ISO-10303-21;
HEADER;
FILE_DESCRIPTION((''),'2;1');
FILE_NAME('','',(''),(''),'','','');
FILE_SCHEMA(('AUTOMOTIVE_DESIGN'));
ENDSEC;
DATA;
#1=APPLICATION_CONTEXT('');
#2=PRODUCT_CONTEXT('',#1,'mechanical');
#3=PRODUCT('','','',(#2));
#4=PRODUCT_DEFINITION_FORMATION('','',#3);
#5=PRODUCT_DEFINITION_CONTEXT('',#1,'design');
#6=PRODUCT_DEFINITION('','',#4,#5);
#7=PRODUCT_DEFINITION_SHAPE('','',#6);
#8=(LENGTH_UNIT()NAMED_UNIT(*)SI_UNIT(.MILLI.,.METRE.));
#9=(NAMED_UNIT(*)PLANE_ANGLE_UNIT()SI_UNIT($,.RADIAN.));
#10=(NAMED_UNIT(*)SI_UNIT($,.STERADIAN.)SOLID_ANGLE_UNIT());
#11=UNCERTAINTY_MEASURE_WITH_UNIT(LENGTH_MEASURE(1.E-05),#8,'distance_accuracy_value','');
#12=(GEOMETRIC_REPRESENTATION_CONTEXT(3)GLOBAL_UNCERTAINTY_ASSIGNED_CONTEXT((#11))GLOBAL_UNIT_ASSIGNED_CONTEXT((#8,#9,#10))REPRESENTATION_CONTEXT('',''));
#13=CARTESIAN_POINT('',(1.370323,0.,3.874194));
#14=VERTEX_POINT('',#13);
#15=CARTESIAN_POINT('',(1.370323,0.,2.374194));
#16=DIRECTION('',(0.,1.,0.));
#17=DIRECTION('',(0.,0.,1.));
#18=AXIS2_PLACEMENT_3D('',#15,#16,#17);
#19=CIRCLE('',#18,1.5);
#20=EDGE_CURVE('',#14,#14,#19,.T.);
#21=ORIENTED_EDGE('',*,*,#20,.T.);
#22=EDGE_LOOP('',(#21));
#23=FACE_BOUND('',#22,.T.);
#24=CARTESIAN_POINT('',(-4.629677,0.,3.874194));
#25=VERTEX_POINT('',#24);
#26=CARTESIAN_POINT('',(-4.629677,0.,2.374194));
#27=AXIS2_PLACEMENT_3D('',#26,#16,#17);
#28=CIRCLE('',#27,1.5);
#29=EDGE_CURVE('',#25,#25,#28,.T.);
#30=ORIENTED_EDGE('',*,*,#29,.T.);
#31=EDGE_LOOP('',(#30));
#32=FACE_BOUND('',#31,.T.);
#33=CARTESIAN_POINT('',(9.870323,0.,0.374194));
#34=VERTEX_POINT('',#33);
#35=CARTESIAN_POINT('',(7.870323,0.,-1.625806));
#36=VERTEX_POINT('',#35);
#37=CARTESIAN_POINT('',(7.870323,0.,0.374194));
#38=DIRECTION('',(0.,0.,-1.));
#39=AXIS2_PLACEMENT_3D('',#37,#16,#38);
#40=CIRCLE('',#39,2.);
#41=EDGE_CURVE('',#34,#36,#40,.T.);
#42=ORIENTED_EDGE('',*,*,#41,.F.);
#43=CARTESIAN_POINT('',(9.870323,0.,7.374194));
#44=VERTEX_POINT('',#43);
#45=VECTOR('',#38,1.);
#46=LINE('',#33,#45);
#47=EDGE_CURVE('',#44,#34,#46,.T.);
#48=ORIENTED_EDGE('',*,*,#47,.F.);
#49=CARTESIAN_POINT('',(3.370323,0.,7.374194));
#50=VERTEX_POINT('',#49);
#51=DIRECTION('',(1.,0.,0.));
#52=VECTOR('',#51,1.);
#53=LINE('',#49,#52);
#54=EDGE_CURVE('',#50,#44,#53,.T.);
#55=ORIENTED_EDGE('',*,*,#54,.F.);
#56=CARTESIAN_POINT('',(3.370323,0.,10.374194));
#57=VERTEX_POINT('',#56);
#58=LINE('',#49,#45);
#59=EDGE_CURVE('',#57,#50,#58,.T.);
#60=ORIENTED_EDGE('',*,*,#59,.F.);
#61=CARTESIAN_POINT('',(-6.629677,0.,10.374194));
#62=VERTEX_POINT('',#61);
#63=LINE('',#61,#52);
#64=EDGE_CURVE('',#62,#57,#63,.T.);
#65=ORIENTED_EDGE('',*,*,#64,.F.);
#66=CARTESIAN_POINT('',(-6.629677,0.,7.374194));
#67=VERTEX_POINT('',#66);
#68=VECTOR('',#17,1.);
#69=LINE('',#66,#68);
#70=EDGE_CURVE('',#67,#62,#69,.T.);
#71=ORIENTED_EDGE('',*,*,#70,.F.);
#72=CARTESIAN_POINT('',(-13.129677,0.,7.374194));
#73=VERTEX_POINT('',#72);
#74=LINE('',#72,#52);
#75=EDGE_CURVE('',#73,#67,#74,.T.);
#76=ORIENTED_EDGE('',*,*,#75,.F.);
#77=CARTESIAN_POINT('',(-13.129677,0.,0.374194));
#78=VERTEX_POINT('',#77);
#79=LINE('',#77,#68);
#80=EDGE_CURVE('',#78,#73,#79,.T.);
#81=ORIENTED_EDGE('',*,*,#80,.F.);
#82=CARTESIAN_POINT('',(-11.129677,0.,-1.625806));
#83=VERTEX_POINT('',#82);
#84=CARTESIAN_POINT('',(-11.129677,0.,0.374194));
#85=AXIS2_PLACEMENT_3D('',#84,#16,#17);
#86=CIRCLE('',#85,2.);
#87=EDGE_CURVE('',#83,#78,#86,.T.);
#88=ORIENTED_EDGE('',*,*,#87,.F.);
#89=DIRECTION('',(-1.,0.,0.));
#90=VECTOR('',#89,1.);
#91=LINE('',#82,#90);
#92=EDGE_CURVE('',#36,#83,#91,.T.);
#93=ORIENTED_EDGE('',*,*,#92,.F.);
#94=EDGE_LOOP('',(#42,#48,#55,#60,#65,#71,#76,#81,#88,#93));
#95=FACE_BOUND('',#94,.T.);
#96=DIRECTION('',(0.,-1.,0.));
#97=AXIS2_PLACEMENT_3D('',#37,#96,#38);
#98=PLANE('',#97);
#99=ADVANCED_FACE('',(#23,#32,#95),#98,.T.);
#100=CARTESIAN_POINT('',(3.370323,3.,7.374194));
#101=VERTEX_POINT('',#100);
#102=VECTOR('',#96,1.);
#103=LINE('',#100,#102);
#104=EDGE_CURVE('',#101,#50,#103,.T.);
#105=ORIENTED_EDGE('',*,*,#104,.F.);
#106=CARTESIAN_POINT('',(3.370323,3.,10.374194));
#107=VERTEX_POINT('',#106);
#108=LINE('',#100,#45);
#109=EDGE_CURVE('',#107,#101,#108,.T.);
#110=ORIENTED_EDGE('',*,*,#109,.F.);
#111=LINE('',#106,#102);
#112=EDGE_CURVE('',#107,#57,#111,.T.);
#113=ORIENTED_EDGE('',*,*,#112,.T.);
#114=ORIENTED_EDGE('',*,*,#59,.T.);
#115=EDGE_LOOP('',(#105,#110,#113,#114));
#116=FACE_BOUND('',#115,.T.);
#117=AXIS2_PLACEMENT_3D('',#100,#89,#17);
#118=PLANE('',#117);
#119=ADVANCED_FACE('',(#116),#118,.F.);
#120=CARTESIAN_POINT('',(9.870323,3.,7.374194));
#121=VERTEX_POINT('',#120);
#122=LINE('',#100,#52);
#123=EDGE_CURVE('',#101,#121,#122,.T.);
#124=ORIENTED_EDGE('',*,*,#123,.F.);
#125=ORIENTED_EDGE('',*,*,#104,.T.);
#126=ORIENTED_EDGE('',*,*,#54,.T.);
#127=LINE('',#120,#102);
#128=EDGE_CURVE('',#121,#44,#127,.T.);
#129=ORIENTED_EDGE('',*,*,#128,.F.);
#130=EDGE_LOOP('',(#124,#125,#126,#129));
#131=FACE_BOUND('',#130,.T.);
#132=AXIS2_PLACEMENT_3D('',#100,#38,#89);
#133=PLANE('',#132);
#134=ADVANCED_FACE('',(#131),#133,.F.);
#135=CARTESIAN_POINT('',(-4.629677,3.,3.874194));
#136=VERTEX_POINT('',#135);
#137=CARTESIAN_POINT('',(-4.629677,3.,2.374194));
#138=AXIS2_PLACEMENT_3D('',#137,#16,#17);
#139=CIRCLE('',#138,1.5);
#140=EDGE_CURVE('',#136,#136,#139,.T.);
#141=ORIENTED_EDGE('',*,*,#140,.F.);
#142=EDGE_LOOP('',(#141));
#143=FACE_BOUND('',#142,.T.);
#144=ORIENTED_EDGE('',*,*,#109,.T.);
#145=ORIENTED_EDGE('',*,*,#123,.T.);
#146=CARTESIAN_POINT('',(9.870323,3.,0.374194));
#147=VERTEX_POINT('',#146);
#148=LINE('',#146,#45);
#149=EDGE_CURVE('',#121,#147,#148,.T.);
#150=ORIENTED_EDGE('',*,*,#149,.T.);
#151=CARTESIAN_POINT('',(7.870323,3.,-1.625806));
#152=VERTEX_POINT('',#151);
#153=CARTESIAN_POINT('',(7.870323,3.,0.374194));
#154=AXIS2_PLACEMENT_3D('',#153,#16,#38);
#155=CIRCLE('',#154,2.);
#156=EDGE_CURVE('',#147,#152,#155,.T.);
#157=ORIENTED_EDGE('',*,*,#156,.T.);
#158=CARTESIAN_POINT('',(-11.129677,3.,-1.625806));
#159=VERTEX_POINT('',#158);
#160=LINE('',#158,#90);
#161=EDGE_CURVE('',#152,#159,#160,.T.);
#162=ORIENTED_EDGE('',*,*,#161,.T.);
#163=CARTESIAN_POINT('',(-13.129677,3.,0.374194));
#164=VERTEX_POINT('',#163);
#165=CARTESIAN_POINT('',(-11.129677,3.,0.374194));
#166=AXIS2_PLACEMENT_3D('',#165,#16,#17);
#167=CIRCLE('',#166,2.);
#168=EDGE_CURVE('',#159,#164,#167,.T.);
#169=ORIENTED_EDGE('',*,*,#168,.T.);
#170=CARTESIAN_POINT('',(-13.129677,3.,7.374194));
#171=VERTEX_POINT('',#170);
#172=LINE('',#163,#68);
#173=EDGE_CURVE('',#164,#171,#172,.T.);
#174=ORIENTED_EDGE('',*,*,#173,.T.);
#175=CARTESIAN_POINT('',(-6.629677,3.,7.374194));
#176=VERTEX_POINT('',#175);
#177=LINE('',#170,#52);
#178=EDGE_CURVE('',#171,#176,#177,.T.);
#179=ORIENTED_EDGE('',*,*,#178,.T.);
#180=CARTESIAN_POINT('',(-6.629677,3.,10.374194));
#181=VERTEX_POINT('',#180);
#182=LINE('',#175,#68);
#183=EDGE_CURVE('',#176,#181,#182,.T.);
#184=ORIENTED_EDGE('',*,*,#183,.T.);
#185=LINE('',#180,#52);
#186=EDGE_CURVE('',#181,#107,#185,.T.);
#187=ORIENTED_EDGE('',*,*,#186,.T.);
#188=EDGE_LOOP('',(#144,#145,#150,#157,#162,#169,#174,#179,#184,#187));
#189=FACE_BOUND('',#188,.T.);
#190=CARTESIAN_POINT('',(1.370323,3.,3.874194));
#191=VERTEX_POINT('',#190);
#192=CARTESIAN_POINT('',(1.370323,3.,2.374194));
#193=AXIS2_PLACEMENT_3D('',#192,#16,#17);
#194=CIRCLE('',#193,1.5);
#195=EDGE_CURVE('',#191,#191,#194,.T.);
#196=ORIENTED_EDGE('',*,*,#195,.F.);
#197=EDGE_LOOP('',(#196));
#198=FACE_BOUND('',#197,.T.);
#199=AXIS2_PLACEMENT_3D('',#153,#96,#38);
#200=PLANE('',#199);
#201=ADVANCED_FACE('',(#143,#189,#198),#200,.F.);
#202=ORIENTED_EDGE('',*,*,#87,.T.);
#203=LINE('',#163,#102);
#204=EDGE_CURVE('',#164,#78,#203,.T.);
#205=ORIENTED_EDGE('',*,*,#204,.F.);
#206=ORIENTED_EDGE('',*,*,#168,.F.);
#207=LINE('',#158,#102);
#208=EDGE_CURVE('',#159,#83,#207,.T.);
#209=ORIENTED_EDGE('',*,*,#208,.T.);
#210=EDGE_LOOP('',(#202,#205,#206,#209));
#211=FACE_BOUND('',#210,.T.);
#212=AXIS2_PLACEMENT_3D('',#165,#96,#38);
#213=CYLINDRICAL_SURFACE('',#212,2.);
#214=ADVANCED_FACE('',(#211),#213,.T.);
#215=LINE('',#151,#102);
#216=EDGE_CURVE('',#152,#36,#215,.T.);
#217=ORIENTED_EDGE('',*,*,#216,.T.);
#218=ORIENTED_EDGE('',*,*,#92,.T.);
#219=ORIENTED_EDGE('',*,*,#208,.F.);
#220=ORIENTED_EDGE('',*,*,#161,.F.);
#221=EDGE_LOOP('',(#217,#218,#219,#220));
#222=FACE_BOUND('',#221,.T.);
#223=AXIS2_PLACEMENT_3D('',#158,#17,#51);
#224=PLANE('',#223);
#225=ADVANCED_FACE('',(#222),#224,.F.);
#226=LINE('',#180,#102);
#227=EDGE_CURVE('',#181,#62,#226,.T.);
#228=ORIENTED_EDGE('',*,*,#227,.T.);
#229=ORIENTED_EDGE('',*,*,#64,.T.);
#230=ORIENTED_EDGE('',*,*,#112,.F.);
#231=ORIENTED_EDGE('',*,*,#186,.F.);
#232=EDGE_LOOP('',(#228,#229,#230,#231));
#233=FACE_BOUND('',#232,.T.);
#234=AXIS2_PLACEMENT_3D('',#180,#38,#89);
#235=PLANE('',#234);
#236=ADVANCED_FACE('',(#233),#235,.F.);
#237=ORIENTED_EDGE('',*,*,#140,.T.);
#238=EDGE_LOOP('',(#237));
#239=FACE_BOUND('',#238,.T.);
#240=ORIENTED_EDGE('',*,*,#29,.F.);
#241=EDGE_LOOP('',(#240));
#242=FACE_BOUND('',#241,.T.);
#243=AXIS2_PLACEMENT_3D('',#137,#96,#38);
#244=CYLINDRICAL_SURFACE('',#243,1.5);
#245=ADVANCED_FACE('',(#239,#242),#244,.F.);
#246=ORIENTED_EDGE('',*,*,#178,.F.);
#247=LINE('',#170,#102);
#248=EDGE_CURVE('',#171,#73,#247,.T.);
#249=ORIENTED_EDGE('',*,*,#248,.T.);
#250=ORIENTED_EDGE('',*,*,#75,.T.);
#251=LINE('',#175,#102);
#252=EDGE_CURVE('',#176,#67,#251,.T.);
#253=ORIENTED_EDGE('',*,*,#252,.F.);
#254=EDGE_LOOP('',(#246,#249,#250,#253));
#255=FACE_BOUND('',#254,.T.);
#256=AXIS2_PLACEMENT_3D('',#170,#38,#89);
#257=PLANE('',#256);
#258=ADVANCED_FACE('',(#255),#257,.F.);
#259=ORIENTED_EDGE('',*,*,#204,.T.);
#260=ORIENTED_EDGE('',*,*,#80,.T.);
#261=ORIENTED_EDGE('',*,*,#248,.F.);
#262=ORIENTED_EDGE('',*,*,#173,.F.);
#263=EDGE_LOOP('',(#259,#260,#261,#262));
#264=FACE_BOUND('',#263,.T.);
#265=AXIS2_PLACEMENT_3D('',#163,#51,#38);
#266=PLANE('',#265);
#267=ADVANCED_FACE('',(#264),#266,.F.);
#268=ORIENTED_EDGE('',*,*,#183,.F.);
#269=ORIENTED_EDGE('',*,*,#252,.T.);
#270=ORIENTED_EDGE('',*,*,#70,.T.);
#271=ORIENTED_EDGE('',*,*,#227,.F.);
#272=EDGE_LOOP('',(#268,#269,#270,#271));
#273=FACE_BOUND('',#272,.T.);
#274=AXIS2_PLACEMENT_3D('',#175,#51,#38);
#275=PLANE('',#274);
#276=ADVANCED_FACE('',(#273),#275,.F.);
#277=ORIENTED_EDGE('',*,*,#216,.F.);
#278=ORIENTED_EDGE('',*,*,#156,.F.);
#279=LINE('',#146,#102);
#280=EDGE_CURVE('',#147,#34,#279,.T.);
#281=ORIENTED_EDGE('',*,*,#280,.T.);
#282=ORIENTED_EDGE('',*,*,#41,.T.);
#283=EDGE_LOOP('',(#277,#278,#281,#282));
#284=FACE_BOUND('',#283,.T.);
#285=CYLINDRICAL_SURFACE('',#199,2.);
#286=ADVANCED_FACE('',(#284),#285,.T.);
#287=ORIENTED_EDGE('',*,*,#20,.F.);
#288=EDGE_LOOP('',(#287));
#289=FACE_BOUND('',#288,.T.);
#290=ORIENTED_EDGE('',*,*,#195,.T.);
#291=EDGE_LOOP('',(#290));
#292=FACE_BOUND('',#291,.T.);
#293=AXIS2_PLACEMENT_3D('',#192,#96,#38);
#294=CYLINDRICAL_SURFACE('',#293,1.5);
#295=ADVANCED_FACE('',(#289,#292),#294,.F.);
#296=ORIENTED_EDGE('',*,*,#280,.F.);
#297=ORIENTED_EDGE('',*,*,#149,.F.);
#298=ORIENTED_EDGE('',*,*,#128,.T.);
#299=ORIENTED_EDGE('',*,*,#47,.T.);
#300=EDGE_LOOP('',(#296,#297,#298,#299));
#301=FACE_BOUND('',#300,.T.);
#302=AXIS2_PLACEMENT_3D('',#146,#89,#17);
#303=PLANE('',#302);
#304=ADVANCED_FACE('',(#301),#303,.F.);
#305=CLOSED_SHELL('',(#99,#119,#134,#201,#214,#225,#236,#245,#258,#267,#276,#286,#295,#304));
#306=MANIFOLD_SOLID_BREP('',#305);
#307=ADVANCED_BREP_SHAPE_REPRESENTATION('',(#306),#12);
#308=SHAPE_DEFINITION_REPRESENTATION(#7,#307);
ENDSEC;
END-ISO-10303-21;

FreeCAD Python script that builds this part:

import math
import FreeCAD as App
import Part
import Sketcher

doc = App.newDocument("Part")
body = doc.addObject("PartDesign::Body", "Body")

sketch1 = body.newObject("Sketcher::SketchObject", "Sketch")
sketch1.AttachmentSupport = (doc.getObject("XZ_Plane"), [""])
sketch1.MapMode = "FlatFace"
sketch1.addGeometry(Part.LineSegment(App.Vector(7.9, -1.6, 0), App.Vector(-11.1, -1.6, 0)), False)
sketch1.addGeometry(Part.ArcOfCircle(Part.Circle(App.Vector(-11.1, 0.4, 0), App.Vector(0, 0, 1), 2), math.radians(180), math.radians(270)), False)
sketch1.addGeometry(Part.LineSegment(App.Vector(-13.1, 0.4, 0), App.Vector(-13.1, 7.4, 0)), False)
sketch1.addGeometry(Part.LineSegment(App.Vector(-13.1, 7.4, 0), App.Vector(-6.6, 7.4, 0)), False)
sketch1.addGeometry(Part.LineSegment(App.Vector(-6.6, 7.4, 0), App.Vector(-6.6, 10.4, 0)), False)
sketch1.addGeometry(Part.LineSegment(App.Vector(-6.6, 10.4, 0), App.Vector(3.4, 10.4, 0)), False)
sketch1.addGeometry(Part.LineSegment(App.Vector(3.4, 10.4, 0), App.Vector(3.4, 7.4, 0)), False)
sketch1.addGeometry(Part.LineSegment(App.Vector(3.4, 7.4, 0), App.Vector(9.9, 7.4, 0)), False)
sketch1.addGeometry(Part.LineSegment(App.Vector(9.9, 7.4, 0), App.Vector(9.9, 0.4, 0)), False)
sketch1.addGeometry(Part.ArcOfCircle(Part.Circle(App.Vector(7.9, 0.4, 0), App.Vector(0, 0, 1), 2), math.radians(-90), math.radians(0)), False)
sketch1.addGeometry(Part.Circle(App.Vector(1.4, 2.4, 0), App.Vector(0, 0, 1), 1.5), False)
sketch1.addGeometry(Part.Circle(App.Vector(-4.6, 2.4, 0), App.Vector(0, 0, 1), 1.5), False)
sketch1.addConstraint(Sketcher.Constraint("Tangent", 0, 2, 1, 2))
sketch1.addConstraint(Sketcher.Constraint("Tangent", 1, 1, 2, 1))
sketch1.addConstraint(Sketcher.Constraint("Coincident", 2, 2, 3, 1))
sketch1.addConstraint(Sketcher.Constraint("Coincident", 3, 2, 4, 1))
sketch1.addConstraint(Sketcher.Constraint("Coincident", 4, 2, 5, 1))
sketch1.addConstraint(Sketcher.Constraint("Coincident", 5, 2, 6, 1))
sketch1.addConstraint(Sketcher.Constraint("Coincident", 6, 2, 7, 1))
sketch1.addConstraint(Sketcher.Constraint("Coincident", 7, 2, 8, 1))
sketch1.addConstraint(Sketcher.Constraint("Tangent", 8, 2, 9, 2))
sketch1.addConstraint(Sketcher.Constraint("Tangent", 9, 1, 0, 1))
sketch1.addConstraint(Sketcher.Constraint("Horizontal", 0))
sketch1.addConstraint(Sketcher.Constraint("Vertical", 2))
sketch1.addConstraint(Sketcher.Constraint("Horizontal", 3))
sketch1.addConstraint(Sketcher.Constraint("Vertical", 4))
sketch1.addConstraint(Sketcher.Constraint("Horizontal", 5))
sketch1.addConstraint(Sketcher.Constraint("Vertical", 6))
sketch1.addConstraint(Sketcher.Constraint("Horizontal", 7))
sketch1.addConstraint(Sketcher.Constraint("Vertical", 8))
sketch1.addConstraint(Sketcher.Constraint("Equal", 1, 9))
sketch1.addConstraint(Sketcher.Constraint("Equal", 10, 11))
sketch1.addConstraint(Sketcher.Constraint("Horizontal", 10, 3, 11, 3))
sketch1.addConstraint(Sketcher.Constraint("Horizontal", 3, 2, 6, 2))
sketch1.addConstraint(Sketcher.Constraint("Equal", 3, 7))
sketch1.addConstraint(Sketcher.Constraint("Diameter", 10, 3.0))
sketch1.addConstraint(Sketcher.Constraint("Radius", 1, 2.0))
sketch1.addConstraint(Sketcher.Constraint("DistanceX", 0, 2, 0, 1, 19.0))
sketch1.addConstraint(Sketcher.Constraint("DistanceX", 5, 1, 5, 2, 10.0))
sketch1.addConstraint(Sketcher.Constraint("DistanceY", 2, 1, 2, 2, 7.0))
sketch1.addConstraint(Sketcher.Constraint("DistanceY", 4, 1, 4, 2, 3.0))
sketch1.addConstraint(Sketcher.Constraint("DistanceY", 9, 3, 10, 3, 2.0))
sketch1.addConstraint(Sketcher.Constraint("DistanceX", 11, 3, 10, 3, 6.0))
sketch1.addConstraint(Sketcher.Constraint("DistanceX", 3, 2, 11, 3, 2.0))
sketch1.addConstraint(Sketcher.Constraint("DistanceX", 1, 3, -1, 1, 11.129677))
sketch1.addConstraint(Sketcher.Constraint("DistanceY", -1, 1, 1, 3, 0.374194))
pad1 = body.newObject("PartDesign::Pad", "Pad")
pad1.Profile = sketch1
pad1.Length = 3
pad1.Reversed = True

doc.recompute()
